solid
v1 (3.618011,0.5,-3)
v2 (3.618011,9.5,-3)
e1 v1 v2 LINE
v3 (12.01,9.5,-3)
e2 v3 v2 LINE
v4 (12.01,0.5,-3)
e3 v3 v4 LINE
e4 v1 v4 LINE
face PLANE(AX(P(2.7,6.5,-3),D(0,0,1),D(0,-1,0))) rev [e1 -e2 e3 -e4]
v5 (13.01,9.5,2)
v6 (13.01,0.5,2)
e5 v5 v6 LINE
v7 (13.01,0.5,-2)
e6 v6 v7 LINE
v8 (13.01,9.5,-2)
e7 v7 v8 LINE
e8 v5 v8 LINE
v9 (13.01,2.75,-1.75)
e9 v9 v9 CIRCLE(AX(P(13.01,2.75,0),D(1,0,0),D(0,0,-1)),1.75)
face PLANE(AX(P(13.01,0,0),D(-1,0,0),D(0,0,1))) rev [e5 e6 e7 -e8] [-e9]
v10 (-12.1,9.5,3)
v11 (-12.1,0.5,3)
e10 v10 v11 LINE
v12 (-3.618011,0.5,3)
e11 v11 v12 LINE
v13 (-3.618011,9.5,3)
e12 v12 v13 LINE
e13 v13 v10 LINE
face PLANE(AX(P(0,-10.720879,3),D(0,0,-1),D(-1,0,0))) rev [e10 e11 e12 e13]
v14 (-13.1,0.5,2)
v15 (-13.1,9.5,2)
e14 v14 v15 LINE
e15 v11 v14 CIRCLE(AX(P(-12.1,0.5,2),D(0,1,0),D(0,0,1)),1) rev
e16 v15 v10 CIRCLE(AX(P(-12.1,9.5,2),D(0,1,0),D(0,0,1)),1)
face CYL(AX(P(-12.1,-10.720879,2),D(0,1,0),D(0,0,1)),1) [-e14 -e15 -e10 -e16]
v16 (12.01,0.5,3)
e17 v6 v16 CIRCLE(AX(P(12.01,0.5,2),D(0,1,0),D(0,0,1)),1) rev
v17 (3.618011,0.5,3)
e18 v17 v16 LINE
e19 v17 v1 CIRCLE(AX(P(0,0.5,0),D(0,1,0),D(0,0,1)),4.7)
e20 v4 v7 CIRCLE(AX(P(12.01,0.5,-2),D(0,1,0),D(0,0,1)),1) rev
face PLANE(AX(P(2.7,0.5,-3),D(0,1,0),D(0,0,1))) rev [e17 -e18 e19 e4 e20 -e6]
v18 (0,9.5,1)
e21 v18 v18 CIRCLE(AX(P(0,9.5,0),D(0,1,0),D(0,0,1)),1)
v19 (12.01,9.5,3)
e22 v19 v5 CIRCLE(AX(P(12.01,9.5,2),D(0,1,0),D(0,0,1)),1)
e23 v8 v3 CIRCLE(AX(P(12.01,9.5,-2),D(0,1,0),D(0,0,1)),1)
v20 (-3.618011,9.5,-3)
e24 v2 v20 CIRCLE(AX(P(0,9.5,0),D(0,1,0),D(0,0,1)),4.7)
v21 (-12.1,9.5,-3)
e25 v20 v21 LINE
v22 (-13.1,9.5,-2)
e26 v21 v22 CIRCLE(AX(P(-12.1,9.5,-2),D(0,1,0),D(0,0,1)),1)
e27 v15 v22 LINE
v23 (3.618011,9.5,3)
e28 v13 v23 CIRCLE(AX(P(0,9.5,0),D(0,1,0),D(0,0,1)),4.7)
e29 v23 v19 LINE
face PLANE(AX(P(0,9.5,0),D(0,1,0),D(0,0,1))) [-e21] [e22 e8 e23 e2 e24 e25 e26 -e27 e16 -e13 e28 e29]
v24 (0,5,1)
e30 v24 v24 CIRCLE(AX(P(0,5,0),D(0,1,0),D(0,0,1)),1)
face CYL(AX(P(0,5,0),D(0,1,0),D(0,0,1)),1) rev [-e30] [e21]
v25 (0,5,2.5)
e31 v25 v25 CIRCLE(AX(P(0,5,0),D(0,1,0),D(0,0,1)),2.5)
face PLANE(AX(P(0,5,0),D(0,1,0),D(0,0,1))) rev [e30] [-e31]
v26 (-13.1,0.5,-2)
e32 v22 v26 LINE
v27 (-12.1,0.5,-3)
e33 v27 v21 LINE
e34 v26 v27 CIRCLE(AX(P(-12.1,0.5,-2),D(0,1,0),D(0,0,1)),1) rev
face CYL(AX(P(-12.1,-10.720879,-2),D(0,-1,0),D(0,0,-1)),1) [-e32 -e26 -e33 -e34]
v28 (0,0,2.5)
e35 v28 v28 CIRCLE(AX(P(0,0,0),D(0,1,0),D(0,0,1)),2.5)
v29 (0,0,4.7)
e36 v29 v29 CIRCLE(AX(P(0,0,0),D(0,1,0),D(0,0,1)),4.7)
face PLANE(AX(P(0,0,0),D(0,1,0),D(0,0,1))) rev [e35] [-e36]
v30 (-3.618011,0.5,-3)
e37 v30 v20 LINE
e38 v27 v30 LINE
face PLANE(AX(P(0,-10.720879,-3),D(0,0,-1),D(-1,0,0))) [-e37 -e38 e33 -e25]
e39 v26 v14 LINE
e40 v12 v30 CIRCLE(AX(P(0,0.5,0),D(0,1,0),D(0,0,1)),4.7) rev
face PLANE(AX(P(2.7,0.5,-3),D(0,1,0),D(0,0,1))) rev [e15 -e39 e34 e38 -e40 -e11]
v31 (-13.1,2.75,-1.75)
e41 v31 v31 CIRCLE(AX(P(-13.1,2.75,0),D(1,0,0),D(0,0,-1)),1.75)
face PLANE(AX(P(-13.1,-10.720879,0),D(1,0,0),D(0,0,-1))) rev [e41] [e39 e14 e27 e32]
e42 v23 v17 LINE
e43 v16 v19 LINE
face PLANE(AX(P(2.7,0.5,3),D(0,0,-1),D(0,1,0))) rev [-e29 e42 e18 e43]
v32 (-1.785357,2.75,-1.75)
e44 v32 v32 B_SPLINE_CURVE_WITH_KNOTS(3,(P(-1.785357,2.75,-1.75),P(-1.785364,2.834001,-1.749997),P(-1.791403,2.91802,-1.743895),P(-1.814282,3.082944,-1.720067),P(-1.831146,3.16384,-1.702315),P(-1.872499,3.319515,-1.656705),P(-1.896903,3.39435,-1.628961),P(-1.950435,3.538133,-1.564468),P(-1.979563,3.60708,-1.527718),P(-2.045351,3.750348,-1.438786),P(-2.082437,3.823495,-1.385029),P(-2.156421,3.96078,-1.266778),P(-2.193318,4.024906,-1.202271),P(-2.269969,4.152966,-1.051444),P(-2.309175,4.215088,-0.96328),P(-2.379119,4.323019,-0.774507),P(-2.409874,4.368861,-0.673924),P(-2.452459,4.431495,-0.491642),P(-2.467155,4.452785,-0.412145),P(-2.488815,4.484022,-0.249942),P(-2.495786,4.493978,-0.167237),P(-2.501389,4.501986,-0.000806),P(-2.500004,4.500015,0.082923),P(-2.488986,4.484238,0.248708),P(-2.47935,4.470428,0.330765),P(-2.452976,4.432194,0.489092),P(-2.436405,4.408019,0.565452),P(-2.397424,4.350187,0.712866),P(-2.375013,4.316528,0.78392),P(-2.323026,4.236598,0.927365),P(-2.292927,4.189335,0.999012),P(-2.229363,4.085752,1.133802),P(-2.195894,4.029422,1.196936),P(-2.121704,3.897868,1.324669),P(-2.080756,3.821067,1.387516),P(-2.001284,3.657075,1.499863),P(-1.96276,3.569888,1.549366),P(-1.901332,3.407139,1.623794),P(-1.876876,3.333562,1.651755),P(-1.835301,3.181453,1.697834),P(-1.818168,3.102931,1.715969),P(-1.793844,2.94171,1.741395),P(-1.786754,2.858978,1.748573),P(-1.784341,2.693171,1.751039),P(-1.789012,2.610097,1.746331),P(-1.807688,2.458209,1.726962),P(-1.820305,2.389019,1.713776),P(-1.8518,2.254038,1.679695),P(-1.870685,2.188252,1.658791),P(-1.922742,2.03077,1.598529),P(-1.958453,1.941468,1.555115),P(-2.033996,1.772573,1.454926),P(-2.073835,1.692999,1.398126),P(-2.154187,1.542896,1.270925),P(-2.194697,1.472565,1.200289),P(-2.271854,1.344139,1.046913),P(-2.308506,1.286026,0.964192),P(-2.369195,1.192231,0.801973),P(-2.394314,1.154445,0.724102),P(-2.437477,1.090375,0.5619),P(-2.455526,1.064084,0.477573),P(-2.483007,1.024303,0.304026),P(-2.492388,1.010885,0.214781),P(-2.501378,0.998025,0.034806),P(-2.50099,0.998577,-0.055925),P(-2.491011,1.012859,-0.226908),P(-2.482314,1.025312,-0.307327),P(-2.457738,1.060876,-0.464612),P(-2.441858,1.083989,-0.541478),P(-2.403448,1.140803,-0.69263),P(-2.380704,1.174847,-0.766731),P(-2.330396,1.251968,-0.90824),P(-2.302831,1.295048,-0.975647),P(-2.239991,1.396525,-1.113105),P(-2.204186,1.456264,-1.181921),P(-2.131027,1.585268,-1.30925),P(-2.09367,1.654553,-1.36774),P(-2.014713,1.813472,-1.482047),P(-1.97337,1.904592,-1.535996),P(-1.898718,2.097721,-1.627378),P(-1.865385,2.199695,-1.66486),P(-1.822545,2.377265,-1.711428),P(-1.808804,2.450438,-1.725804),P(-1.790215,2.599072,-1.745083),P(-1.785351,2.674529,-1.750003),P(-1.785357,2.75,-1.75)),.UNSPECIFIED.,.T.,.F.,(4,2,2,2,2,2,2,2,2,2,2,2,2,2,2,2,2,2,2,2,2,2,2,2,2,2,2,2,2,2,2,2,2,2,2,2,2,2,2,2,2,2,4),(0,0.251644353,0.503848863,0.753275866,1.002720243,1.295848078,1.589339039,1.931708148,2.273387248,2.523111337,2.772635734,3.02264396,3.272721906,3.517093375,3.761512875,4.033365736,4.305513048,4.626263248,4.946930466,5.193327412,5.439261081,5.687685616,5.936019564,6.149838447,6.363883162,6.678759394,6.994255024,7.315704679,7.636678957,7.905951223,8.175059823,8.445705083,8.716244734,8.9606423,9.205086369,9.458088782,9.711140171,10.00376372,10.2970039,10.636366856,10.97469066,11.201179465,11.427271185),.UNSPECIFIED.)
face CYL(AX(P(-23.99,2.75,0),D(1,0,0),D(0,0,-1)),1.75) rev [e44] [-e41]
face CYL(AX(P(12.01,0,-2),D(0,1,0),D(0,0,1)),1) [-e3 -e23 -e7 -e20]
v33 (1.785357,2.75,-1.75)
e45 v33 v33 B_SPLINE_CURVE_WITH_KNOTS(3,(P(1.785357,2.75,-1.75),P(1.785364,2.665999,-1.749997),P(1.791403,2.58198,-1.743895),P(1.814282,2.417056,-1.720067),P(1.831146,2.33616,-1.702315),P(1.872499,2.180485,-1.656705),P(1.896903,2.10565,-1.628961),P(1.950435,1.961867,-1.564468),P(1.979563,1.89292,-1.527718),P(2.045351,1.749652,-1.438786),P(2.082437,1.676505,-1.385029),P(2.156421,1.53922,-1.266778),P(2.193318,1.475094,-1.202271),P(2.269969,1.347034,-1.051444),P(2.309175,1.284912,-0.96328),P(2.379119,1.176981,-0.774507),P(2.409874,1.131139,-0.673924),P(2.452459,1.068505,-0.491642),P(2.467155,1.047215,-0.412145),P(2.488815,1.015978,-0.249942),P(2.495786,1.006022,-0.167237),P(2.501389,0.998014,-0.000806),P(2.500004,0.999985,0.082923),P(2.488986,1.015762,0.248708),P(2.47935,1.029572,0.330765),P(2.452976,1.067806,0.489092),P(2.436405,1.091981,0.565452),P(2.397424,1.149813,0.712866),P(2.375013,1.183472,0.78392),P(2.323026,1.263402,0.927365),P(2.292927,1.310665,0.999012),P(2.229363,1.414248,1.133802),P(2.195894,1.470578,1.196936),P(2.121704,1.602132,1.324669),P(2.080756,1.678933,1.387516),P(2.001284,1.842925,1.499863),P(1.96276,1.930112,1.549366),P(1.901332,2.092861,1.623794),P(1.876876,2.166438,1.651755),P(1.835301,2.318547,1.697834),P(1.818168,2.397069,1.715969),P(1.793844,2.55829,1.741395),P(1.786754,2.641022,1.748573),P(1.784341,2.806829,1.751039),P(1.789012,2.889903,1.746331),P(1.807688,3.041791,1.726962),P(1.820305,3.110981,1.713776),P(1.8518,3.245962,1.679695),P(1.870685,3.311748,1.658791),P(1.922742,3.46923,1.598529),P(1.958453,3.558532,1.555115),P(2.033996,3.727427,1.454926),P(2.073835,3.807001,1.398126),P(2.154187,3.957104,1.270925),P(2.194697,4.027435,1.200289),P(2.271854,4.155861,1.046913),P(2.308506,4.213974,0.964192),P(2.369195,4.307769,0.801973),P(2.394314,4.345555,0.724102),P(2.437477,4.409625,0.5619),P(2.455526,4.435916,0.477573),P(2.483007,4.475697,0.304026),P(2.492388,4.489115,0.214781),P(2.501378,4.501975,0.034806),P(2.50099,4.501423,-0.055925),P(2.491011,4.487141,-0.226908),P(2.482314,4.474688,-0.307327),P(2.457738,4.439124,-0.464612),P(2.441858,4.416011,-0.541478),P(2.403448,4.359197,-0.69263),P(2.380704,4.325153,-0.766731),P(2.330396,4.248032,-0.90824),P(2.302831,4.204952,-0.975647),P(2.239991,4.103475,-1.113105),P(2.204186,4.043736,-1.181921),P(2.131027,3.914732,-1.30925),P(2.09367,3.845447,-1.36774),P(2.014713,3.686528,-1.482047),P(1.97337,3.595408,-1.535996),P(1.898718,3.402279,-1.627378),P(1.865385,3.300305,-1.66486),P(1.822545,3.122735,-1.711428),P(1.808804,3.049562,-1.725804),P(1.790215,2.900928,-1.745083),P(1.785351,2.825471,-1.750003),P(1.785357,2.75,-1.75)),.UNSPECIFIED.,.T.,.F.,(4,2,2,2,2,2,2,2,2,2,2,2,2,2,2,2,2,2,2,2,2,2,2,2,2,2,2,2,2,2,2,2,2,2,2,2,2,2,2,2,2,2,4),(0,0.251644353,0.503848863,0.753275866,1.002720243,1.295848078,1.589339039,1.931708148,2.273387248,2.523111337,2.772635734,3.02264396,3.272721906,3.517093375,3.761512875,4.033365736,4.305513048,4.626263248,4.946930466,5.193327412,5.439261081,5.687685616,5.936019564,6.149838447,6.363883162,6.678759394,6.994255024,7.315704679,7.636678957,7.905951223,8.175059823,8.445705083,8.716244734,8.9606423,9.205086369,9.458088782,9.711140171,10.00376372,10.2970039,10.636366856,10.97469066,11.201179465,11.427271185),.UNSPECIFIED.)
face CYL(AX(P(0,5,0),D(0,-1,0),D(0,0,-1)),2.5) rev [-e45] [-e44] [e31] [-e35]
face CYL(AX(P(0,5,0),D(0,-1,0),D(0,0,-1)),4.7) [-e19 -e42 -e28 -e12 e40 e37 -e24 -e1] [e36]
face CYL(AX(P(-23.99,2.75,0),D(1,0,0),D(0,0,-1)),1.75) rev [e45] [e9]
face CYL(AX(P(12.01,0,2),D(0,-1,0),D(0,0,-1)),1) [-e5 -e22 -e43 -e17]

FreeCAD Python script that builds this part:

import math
import FreeCAD as App
import Part
import Sketcher
from FreeCAD import Vector


def edges_at(feature, points):
    """Names of the edges that pass closest to the given points."""
    edges = feature.Shape.Edges
    near = lambda p: min(range(len(edges)), key=lambda i: edges[i].distToShape(Part.Vertex(*p))[0])
    return sorted({f"Edge{near(p) + 1}" for p in points})


def add_polygon(sketch, points):
    """Adds a closed chain of lines whose ends are joined by coincident constraints."""
    first, n = sketch.GeometryCount, len(points)
    for a, b in zip(points, points[1:] + points[:1]):
        sketch.addGeometry(Part.LineSegment(App.Vector(*a, 0), App.Vector(*b, 0)), False)
    for i in range(n):
        sketch.addConstraint(Sketcher.Constraint("Coincident", first + i, 2, first + (i + 1) % n, 1))

doc = App.newDocument("Part")
body = doc.addObject("PartDesign::Body", "Body")

sketch1 = body.newObject("Sketcher::SketchObject", "Sketch")
sketch1.AttachmentSupport = (doc.getObject("XZ_Plane"), [""])
sketch1.MapMode = "FlatFace"
sketch1.addGeometry([
    Part.Circle(Vector(0, 0, 0), Vector(0, 0, 1), 4.7),
    Part.Circle(Vector(0, 0, 0), Vector(0, 0, 1), 2.5),
], False)
sketch1.addConstraint([
    Sketcher.Constraint("Coincident", 0, 3, -1, 1),
    Sketcher.Constraint("Coincident", 1, 3, -1, 1),
    Sketcher.Constraint("Diameter", 1, 5.0),
    Sketcher.Constraint("Diameter", 0, 9.4),
])
pad1 = body.newObject("PartDesign::Pad", "Pad")
pad1.Profile = sketch1
pad1.Length = 5
pad1.Reversed = True

sketch2 = body.newObject("Sketcher::SketchObject", "Sketch001")
sketch2.AttachmentSupport = (doc.getObject("XZ_Plane"), [""])
sketch2.MapMode = "FlatFace"
sketch2.AttachmentOffset = App.Placement(Vector(0, 0, -5), App.Rotation())
sketch2.addGeometry(Part.Circle(Vector(0, 0, 0), Vector(0, 0, 1), 4.7), False)
sketch2.addConstraint([
    Sketcher.Constraint("Coincident", 0, 3, -1, 1),
    Sketcher.Constraint("Diameter", 0, 9.4),
])
pad2 = body.newObject("PartDesign::Pad", "Pad001")
pad2.Profile = sketch2
pad2.Length = 4.5
pad2.Reversed = True

sketch3 = body.newObject("Sketcher::SketchObject", "Sketch002")
sketch3.AttachmentSupport = (doc.getObject("XZ_Plane"), [""])
sketch3.MapMode = "FlatFace"
sketch3.AttachmentOffset = App.Placement(Vector(0, 0, -9.5), App.Rotation())
sketch3.addGeometry(Part.Circle(Vector(0, 0, 0), Vector(0, 0, 1), 1), False)
sketch3.addConstraint([
    Sketcher.Constraint("Coincident", 0, 3, -1, 1),
    Sketcher.Constraint("Diameter", 0, 2.0),
])
pocket1 = body.newObject("PartDesign::Pocket", "Pocket")
pocket1.Profile = sketch3
pocket1.Length = 4.5
pocket1.Reversed = True
body2 = doc.addObject("PartDesign::Body", "Body001")

sketch4 = body2.newObject("Sketcher::SketchObject", "Sketch003")
sketch4.AttachmentSupport = (doc.getObject("YZ_Plane001"), [""])
sketch4.MapMode = "FlatFace"
sketch4.AttachmentOffset = App.Placement(Vector(0, 0, 4.7), App.Rotation())
add_polygon(sketch4, [(6.5, 3), (0.5, 3), (0.5, -3), (6.5, -3)])
sketch4.addConstraint([
    Sketcher.Constraint("Horizontal", 0),
    Sketcher.Constraint("Vertical", 1),
    Sketcher.Constraint("Horizontal", 2),
    Sketcher.Constraint("Vertical", 3),
    Sketcher.Constraint("Equal", 2, 1),
    Sketcher.Constraint("DistanceX", 0, 2, 0, 1, 6.0),
    Sketcher.Constraint("DistanceY", -1, 1, 0, 2, 3.0),
    Sketcher.Constraint("DistanceX", -1, 1, 0, 2, 0.5),
])
pad3 = body2.newObject("PartDesign::Pad", "Pad002")
pad3.Profile = sketch4
pad3.Length = 8.31
body.AllowCompound = True
doc.recompute()

boolean = body.newObject("PartDesign::Boolean", "Boolean")
boolean.Type = "Fuse"
boolean.addObjects([body2])

sketch5 = body.newObject("Sketcher::SketchObject", "Sketch004")
sketch5.AttachmentSupport = (doc.getObject("YZ_Plane"), [""])
sketch5.MapMode = "FlatFace"
sketch5.AttachmentOffset = App.Placement(Vector(0, 0, 4.7), App.Rotation())
add_polygon(sketch5, [(6.5, -3), (0.5, -3), (0.5, 3), (6.5, 3)])
sketch5.addConstraint([
    Sketcher.Constraint("Horizontal", 0),
    Sketcher.Constraint("Vertical", 1),
    Sketcher.Constraint("Horizontal", 2),
    Sketcher.Constraint("Vertical", 3),
    Sketcher.Constraint("Equal", 2, 1),
    Sketcher.Constraint("DistanceX", 0, 2, 0, 1, 6.0),
    Sketcher.Constraint("DistanceY", 0, 2, -1, 1, 3.0),
    Sketcher.Constraint("DistanceX", -1, 1, 0, 2, 0.5),
])
pad4 = body.newObject("PartDesign::Pad", "Pad003")
pad4.Profile = sketch5
pad4.Length = 2
pad4.Reversed = True
doc.recompute()

fillet = body.newObject("PartDesign::Fillet", "Fillet")
fillet.Base = (pad4, edges_at(pad4, [(13.01, 3.5, -3), (13.01, 3.5, 3)]))
fillet.Radius = 1

sketch6 = body.newObject("Sketcher::SketchObject", "Sketch005")
sketch6.AttachmentSupport = (doc.getObject("XZ_Plane"), [""])
sketch6.MapMode = "FlatFace"
sketch6.AttachmentOffset = App.Placement(Vector(0, 0, -6.5), App.Rotation())
sketch6.addGeometry([
    Part.LineSegment(Vector(13.01, 2, 0), Vector(13.01, -2, 0)),
    Part.ArcOfCircle(Part.Circle(Vector(12.01, -2, 0), Vector(0, 0, 1), 1), math.radians(-90), math.radians(0)),
    Part.LineSegment(Vector(12.01, -3, 0), Vector(3.618011, -3, 0)),
    Part.ArcOfCircle(Part.Circle(Vector(0, 0, 0), Vector(0, 0, 1), 4.7), math.radians(-39.665013), math.radians(39.665013)),
    Part.LineSegment(Vector(3.618011, 3, 0), Vector(12.01, 3, 0)),
    Part.ArcOfCircle(Part.Circle(Vector(12.01, 2, 0), Vector(0, 0, 1), 1), math.radians(0), math.radians(90)),
], False)
sketch6.addConstraint([
    Sketcher.Constraint("Tangent", 0, 2, 1, 2),
    Sketcher.Constraint("Tangent", 1, 1, 2, 1),
    Sketcher.Constraint("Coincident", 2, 2, 3, 1),
    Sketcher.Constraint("Coincident", 3, 2, 4, 1),
    Sketcher.Constraint("Tangent", 4, 2, 5, 2),
    Sketcher.Constraint("Tangent", 5, 1, 0, 1),
    Sketcher.Constraint("Vertical", 0),
    Sketcher.Constraint("Horizontal", 2),
    Sketcher.Constraint("Horizontal", 4),
    Sketcher.Constraint("Coincident", 3, 3, -1, 1),
    Sketcher.Constraint("Equal", 1, 5),
    Sketcher.Constraint("Vertical", 2, 2, 3, 2),
    Sketcher.Constraint("Radius", 1, 1.0),
    Sketcher.Constraint("Radius", 3, 4.7),
    Sketcher.Constraint("DistanceY", 0, 2, 0, 1, 4.0),
    Sketcher.Constraint("DistanceX", -1, 1, 1, 3, 12.01),
])
pad5 = body.newObject("PartDesign::Pad", "Pad004")
pad5.Profile = sketch6
pad5.Length = 3
pad5.Reversed = True

sketch7 = body.newObject("Sketcher::SketchObject", "Sketch006")
sketch7.AttachmentSupport = (doc.getObject("XZ_Plane"), [""])
sketch7.MapMode = "FlatFace"
sketch7.AttachmentOffset = App.Placement(Vector(0, 0, -9.5), App.Rotation())
sketch7.addGeometry([
    Part.LineSegment(Vector(-13.1, 3, 0), Vector(-3.354102, 3, 0)),
    Part.ArcOfCircle(Part.Circle(Vector(0, 0, 0), Vector(0, 0, 1), 4.5), math.radians(138.189685), math.radians(221.810315)),
    Part.LineSegment(Vector(-3.354102, -3, 0), Vector(-13.1, -3, 0)),
    Part.LineSegment(Vector(-13.1, -3, 0), Vector(-13.1, 3, 0)),
], False)
sketch7.addConstraint([
    Sketcher.Constraint("Coincident", 0, 2, 1, 1),
    Sketcher.Constraint("Coincident", 1, 2, 2, 1),
    Sketcher.Constraint("Coincident", 2, 2, 3, 1),
    Sketcher.Constraint("Coincident", 3, 2, 0, 1),
    Sketcher.Constraint("Horizontal", 0),
    Sketcher.Constraint("Horizontal", 2),
    Sketcher.Constraint("Vertical", 3),
    Sketcher.Constraint("Coincident", 1, 3, -1, 1),
    Sketcher.Constraint("Vertical", 0, 2, 1, 2),
    Sketcher.Constraint("Radius", 1, 4.5),
    Sketcher.Constraint("DistanceY", 3, 1, 3, 2, 6.0),
    Sketcher.Constraint("DistanceX", 2, 2, -1, 1, 13.1),
])
pad6 = body.newObject("PartDesign::Pad", "Pad005")
pad6.Profile = sketch7
pad6.Length = 9
doc.recompute()

fillet2 = body.newObject("PartDesign::Fillet", "Fillet001")
fillet2.Base = (pad6, edges_at(pad6, [(-13.1, 5, -3), (-13.1, 5, 3)]))
fillet2.Radius = 1

sketch8 = body.newObject("Sketcher::SketchObject", "Sketch007")
sketch8.AttachmentSupport = (doc.getObject("YZ_Plane"), [""])
sketch8.MapMode = "FlatFace"
sketch8.AttachmentOffset = App.Placement(Vector(0, 0, 13.01), App.Rotation())
sketch8.addGeometry(Part.Circle(Vector(2.75, 0, 0), Vector(0, 0, 1), 1.75), False)
sketch8.addConstraint([
    Sketcher.Constraint("PointOnObject", 0, 3, -1),
    Sketcher.Constraint("Diameter", 0, 3.5),
    Sketcher.Constraint("DistanceX", -1, 1, 0, 3, 2.75),
])
pocket2 = body.newObject("PartDesign::Pocket", "Pocket001")
pocket2.Profile = sketch8
pocket2.Length = 37

doc.recompute()
